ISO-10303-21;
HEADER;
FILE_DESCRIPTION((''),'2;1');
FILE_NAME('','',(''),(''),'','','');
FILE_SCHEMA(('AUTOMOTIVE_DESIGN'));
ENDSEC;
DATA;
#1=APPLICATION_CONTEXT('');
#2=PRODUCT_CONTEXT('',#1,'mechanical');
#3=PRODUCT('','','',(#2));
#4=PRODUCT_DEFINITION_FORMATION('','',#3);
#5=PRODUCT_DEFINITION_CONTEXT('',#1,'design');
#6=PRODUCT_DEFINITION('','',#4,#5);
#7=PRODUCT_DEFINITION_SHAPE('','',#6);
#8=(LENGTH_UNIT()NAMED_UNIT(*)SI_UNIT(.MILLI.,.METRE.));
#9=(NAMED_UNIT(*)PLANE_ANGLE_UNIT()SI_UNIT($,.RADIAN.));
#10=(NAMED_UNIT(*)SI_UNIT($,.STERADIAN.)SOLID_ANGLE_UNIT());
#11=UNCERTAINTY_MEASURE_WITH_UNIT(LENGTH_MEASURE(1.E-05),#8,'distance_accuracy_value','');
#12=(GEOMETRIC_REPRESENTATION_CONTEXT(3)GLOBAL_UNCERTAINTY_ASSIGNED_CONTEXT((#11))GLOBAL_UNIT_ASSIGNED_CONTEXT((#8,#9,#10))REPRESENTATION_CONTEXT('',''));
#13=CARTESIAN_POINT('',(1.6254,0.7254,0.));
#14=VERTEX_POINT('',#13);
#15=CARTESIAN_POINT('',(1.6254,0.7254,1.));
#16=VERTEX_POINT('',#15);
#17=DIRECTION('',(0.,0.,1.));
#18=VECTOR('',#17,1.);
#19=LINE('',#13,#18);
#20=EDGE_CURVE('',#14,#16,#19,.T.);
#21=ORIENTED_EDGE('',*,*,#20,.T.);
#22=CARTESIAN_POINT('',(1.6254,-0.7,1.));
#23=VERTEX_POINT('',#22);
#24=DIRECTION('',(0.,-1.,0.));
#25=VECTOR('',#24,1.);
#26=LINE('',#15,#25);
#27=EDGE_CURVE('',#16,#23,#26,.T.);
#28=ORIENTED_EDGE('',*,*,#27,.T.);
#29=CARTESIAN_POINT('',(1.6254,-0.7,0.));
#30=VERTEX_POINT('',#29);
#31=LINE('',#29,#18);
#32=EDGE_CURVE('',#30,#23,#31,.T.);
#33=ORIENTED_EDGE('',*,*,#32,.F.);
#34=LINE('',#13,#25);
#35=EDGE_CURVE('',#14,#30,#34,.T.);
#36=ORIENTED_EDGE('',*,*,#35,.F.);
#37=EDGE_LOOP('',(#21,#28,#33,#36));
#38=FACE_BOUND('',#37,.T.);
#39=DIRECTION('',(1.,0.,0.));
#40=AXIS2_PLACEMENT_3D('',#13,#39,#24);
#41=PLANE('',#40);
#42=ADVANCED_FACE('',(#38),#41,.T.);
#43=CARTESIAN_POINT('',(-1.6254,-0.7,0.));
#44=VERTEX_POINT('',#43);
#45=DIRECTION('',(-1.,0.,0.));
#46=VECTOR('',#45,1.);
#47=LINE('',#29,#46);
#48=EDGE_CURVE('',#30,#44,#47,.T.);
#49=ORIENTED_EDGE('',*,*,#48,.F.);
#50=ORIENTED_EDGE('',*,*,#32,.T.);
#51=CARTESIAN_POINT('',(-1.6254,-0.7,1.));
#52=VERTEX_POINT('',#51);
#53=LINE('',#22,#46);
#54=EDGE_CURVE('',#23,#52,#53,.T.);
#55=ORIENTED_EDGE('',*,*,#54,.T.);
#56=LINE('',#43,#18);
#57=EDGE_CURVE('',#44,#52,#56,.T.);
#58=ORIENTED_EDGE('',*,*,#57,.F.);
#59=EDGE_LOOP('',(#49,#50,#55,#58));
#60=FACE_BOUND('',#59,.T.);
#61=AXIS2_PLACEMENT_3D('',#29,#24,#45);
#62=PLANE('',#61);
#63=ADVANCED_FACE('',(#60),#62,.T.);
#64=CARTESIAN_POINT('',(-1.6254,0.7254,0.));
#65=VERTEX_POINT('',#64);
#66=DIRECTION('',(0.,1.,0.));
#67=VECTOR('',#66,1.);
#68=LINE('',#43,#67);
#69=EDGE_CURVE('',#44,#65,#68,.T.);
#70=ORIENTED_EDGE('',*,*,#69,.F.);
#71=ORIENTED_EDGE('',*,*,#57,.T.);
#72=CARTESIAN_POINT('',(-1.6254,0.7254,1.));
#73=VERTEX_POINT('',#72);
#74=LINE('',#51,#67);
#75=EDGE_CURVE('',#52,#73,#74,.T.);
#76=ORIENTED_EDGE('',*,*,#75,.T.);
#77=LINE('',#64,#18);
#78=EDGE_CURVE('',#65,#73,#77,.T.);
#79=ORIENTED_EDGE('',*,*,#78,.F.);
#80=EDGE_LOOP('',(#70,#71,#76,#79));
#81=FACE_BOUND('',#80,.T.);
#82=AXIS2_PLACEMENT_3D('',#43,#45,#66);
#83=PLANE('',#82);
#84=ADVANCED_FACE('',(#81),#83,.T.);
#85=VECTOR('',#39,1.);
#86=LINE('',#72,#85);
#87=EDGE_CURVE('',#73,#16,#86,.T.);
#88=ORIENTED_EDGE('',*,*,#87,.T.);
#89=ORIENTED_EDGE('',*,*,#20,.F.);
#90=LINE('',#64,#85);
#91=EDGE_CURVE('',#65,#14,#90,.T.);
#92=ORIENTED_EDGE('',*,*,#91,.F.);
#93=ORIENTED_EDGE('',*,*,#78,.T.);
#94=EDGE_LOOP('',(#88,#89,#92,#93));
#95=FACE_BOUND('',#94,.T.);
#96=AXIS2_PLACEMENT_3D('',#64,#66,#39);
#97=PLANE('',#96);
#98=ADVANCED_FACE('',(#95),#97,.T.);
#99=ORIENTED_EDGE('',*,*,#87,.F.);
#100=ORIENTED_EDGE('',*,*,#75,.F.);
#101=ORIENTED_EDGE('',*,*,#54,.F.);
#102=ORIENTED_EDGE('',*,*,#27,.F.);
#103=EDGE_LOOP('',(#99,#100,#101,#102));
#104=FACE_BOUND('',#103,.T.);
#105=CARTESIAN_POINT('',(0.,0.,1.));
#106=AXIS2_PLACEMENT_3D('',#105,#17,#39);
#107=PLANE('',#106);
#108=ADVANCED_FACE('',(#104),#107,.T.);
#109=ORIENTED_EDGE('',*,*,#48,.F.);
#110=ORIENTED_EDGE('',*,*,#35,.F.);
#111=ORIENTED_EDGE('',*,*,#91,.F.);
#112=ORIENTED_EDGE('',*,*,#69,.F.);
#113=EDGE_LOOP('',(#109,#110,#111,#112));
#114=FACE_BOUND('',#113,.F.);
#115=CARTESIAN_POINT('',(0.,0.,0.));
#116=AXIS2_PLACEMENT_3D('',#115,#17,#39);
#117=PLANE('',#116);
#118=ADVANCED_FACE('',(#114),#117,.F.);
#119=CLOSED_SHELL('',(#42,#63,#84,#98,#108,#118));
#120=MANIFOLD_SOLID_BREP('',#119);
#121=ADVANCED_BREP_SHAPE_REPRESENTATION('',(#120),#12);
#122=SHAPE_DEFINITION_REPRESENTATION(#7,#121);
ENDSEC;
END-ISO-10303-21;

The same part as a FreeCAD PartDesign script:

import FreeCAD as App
import Part
import Sketcher


def add_polygon(sketch, points):
    """Adds a closed chain of lines whose ends are joined by coincident constraints."""
    first, n = sketch.GeometryCount, len(points)
    for a, b in zip(points, points[1:] + points[:1]):
        sketch.addGeometry(Part.LineSegment(App.Vector(*a, 0), App.Vector(*b, 0)), False)
    for i in range(n):
        sketch.addConstraint(Sketcher.Constraint("Coincident", first + i, 2, first + (i + 1) % n, 1))

doc = App.newDocument("Part")
params = doc.addObject("Spreadsheet::Sheet", "Params")
for row, (alias, value) in enumerate([
    ("pad1_length", "1 mm"),
], start=1):
    params.set(f"A{row}", alias)
    params.set(f"B{row}", "=" + value)
    params.setAlias(f"B{row}", alias)

body = doc.addObject("PartDesign::Body", "Body")

sketch1 = doc.addObject("Sketcher::SketchObject", "Sketch")
body.addObject(sketch1)
sketch1.AttachmentSupport = (doc.XY_Plane, [""])
sketch1.MapMode = "FlatFace"
add_polygon(sketch1, [(1.6, 0.7), (-1.6, 0.7), (-1.6, -0.7), (1.6, -0.7)])
sketch1.addConstraint([
    Sketcher.Constraint("Horizontal", 0),
    Sketcher.Constraint("Vertical", 1),
    Sketcher.Constraint("Horizontal", 2),
    Sketcher.Constraint("Vertical", 3),
    Sketcher.Constraint("DistanceY", 1, 2, -1, 1, 0.7),
    Sketcher.Constraint("DistanceX", 0, 2, 0, 1, 3.2508),
    Sketcher.Constraint("DistanceY", 1, 2, 1, 1, 1.4254),
    Sketcher.Constraint("DistanceX", 0, 2, -1, 1, 1.6254),
])
pad1 = doc.addObject("PartDesign::Pad", "Pad")
body.addObject(pad1)
pad1.Profile = sketch1
pad1.setExpression("Length", "Params.pad1_length")

doc.recompute()
